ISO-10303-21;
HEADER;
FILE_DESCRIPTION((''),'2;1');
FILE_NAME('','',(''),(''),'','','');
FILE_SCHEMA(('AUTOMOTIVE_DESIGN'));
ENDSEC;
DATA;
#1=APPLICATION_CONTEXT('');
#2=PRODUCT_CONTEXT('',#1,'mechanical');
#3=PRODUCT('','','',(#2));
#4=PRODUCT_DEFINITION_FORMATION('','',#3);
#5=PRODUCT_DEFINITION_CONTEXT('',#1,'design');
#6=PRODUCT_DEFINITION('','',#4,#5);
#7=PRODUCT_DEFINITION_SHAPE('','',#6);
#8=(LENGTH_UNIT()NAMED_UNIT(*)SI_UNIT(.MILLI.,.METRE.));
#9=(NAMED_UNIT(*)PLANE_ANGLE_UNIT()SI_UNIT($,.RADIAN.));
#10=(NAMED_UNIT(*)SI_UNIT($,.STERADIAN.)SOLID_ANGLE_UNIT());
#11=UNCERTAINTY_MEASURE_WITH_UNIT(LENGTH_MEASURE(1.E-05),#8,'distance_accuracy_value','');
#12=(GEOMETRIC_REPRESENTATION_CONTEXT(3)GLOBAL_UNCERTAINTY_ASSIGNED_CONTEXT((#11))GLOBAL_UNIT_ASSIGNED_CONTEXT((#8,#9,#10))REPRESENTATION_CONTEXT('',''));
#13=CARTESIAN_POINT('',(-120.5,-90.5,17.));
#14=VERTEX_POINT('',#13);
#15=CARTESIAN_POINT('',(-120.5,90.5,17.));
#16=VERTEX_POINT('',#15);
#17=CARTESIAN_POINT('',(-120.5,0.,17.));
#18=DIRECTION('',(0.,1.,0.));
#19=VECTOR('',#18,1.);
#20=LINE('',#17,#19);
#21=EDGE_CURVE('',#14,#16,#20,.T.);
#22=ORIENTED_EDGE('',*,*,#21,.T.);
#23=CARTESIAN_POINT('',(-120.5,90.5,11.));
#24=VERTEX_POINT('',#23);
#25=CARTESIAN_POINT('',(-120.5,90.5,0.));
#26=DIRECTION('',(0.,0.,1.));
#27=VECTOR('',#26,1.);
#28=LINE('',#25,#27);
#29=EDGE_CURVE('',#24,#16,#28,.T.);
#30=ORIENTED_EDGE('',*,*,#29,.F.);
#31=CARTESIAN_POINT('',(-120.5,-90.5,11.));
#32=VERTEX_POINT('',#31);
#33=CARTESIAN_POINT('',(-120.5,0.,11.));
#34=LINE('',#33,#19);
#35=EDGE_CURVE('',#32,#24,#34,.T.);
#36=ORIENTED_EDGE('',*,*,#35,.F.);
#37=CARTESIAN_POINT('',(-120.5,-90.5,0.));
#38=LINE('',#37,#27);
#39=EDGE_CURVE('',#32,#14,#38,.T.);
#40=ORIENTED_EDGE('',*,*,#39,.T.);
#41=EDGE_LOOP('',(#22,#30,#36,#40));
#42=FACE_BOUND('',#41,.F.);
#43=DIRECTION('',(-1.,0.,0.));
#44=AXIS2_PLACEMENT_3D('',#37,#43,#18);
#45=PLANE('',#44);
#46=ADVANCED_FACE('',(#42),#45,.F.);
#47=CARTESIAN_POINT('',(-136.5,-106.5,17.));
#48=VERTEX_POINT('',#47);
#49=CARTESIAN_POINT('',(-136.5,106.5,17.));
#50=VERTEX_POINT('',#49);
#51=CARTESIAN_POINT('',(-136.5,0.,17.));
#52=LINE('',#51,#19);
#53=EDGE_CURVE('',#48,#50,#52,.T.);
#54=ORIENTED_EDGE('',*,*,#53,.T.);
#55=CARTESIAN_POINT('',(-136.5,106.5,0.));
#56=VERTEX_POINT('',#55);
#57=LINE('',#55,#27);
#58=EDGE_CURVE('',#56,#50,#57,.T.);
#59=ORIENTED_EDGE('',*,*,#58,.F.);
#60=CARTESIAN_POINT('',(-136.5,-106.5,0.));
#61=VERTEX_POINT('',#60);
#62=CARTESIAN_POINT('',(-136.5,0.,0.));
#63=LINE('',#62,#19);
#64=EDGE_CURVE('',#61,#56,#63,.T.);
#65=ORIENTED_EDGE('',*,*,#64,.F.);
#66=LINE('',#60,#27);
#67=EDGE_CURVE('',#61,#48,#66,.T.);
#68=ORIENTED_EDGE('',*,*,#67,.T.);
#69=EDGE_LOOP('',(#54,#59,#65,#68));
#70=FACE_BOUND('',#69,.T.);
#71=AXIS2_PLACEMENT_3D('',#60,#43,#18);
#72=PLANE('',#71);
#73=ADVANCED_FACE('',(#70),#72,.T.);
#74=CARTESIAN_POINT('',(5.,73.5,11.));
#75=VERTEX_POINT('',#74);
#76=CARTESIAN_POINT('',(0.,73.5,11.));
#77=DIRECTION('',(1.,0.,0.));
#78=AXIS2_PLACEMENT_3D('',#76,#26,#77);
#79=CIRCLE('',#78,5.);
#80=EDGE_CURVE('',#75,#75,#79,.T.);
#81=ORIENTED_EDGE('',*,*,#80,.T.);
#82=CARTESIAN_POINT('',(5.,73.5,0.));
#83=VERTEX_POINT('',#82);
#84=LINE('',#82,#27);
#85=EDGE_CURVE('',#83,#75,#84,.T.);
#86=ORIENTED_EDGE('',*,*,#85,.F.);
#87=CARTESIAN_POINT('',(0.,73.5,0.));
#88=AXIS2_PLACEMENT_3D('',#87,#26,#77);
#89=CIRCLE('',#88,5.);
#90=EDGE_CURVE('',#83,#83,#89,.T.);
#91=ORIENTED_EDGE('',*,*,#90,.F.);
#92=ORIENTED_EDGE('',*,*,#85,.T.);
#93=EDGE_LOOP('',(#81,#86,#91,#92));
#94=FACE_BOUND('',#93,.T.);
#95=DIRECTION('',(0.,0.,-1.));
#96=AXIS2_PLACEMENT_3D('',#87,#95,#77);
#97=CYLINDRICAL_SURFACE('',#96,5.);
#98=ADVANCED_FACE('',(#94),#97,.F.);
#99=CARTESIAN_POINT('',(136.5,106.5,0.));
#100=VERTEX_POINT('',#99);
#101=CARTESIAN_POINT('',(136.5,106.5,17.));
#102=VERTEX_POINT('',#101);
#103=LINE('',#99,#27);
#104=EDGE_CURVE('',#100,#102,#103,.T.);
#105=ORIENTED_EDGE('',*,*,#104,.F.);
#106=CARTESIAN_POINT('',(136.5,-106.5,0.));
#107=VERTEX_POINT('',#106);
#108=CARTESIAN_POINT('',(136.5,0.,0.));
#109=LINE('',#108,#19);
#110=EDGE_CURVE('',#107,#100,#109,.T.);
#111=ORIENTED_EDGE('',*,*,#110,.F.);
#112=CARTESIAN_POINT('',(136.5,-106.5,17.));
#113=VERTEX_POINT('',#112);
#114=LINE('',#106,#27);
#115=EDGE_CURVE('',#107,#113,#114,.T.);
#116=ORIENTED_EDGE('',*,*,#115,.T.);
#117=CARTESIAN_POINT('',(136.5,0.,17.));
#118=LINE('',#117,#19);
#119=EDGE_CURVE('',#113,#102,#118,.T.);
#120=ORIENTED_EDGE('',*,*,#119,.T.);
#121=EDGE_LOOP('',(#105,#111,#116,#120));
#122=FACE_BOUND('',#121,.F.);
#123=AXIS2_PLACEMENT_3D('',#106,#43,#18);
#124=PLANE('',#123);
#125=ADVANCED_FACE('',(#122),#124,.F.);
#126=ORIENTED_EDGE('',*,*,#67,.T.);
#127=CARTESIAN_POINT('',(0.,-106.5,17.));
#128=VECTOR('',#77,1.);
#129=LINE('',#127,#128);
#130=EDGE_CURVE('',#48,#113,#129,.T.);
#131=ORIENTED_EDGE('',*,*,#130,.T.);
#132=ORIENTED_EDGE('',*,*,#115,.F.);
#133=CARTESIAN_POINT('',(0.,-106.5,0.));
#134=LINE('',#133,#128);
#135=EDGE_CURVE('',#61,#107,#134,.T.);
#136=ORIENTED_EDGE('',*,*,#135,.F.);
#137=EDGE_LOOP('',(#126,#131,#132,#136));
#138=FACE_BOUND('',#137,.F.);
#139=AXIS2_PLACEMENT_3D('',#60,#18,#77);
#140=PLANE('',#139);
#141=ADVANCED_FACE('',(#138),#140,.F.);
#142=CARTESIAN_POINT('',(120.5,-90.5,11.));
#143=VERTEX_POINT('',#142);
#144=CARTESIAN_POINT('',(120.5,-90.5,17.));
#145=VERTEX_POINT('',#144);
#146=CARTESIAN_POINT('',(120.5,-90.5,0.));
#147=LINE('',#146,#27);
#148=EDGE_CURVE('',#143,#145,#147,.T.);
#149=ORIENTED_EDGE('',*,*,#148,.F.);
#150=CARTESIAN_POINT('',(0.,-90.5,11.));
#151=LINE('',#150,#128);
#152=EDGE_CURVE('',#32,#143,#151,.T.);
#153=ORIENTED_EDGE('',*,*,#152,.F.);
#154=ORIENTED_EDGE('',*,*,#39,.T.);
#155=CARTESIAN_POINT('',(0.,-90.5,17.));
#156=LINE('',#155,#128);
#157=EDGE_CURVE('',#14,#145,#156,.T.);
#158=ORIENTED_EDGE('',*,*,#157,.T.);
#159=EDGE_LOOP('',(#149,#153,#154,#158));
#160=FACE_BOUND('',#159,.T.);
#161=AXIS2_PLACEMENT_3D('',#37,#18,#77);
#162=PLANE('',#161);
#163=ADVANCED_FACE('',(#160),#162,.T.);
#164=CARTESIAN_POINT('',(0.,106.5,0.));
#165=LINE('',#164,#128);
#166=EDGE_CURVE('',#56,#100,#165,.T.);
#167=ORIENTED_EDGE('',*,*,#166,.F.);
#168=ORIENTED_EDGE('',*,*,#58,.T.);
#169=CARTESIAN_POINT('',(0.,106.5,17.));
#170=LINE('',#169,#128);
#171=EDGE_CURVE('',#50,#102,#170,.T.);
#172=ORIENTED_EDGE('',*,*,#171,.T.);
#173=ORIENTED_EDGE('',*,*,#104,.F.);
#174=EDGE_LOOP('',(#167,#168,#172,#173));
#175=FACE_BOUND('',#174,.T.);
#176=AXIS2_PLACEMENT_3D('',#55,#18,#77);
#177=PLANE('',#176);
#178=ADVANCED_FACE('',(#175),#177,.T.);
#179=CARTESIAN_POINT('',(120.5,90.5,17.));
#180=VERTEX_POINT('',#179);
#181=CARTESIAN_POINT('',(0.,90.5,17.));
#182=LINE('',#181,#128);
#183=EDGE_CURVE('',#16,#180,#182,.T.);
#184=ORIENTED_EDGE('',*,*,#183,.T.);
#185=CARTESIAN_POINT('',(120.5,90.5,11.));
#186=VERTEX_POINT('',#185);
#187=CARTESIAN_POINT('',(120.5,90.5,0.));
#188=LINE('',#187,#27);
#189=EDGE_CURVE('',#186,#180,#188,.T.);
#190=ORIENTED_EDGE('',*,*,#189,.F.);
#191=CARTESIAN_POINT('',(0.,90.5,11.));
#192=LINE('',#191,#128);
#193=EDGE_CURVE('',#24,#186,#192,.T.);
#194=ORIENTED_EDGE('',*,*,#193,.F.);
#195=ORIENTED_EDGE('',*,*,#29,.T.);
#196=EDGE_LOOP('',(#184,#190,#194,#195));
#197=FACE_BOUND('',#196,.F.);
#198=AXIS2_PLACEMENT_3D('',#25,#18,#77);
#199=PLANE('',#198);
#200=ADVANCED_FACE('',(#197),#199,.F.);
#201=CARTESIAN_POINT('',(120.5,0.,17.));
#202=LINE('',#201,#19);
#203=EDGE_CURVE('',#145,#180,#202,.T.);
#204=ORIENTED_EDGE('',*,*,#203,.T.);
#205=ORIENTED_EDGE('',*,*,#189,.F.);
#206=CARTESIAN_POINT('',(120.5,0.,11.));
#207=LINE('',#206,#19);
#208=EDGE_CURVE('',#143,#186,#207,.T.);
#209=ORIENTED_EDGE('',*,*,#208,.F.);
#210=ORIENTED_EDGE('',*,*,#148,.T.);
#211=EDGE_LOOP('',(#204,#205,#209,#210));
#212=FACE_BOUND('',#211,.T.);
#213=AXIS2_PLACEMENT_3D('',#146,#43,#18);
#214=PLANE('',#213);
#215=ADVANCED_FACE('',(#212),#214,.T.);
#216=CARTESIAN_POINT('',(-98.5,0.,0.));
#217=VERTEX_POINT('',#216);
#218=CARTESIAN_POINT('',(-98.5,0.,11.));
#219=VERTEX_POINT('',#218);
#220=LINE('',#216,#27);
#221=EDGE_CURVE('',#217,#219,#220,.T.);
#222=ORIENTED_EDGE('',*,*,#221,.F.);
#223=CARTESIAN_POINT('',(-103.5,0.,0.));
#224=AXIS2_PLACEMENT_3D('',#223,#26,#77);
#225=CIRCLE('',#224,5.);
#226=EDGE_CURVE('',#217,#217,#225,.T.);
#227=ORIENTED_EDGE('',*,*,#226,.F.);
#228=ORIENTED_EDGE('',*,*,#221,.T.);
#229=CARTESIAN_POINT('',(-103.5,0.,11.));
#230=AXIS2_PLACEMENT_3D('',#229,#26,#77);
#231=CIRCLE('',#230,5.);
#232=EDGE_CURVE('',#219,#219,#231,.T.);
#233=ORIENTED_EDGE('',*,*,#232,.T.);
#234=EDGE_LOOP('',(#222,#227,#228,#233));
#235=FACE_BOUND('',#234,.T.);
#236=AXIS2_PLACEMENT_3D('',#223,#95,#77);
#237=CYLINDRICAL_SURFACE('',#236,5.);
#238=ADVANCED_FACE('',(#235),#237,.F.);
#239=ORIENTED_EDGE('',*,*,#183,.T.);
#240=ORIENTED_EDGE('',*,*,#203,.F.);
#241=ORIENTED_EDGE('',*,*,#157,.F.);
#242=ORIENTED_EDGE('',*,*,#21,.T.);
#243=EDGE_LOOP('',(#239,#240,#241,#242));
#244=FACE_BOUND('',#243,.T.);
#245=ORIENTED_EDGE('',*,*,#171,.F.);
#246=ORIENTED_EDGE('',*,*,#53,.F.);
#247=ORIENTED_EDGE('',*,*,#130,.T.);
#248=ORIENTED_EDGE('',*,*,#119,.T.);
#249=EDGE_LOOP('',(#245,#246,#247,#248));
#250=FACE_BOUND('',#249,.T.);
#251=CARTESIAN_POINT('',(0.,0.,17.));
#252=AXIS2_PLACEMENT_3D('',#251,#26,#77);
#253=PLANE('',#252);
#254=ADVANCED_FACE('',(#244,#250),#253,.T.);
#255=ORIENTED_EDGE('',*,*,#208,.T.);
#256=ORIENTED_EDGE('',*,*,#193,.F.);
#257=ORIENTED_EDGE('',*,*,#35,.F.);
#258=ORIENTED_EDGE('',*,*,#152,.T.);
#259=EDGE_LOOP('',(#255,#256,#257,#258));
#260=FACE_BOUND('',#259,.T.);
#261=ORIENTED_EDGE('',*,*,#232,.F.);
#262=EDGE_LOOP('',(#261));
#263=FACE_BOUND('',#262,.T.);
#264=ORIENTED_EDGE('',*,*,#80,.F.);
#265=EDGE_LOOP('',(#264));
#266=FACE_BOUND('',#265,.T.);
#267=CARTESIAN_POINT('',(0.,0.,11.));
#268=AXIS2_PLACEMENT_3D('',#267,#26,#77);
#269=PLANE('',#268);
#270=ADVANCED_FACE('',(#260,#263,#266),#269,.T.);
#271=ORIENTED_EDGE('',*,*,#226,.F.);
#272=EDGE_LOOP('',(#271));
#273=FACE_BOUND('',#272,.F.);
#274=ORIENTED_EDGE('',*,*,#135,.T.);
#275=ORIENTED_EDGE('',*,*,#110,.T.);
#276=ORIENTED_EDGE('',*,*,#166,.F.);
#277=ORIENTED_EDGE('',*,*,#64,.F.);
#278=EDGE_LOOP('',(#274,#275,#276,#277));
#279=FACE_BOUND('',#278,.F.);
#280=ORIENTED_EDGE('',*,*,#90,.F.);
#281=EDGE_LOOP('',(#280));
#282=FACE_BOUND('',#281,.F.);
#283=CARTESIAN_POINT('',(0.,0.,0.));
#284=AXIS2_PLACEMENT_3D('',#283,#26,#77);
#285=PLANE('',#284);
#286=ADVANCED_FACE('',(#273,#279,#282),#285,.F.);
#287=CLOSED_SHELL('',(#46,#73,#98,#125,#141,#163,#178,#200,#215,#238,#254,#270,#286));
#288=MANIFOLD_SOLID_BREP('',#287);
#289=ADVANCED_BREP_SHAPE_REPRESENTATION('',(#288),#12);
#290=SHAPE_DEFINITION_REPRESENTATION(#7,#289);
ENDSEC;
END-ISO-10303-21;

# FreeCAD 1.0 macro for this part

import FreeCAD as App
import Part
import Sketcher
from FreeCAD import Vector
Q = App.Units.Quantity

doc = App.newDocument("Part")
body = doc.addObject("PartDesign::Body", "Body")

sketch1 = body.newObject("Sketcher::SketchObject", "Sketch")
sketch1.AttachmentSupport = (doc.getObject("XY_Plane"), [""])
sketch1.MapMode = "FlatFace"
sketch1.addGeometry([
    Part.LineSegment(Vector(-136.5, 106.5, 0), Vector(-136.5, -106.5, 0)),
    Part.LineSegment(Vector(-136.5, -106.5, 0), Vector(136.5, -106.5, 0)),
    Part.LineSegment(Vector(136.5, -106.5, 0), Vector(136.5, 106.5, 0)),
    Part.LineSegment(Vector(136.5, 106.5, 0), Vector(-136.5, 106.5, 0)),
    Part.LineSegment(Vector(120.5, -90.5, 0), Vector(-120.5, -90.5, 0)),
    Part.LineSegment(Vector(-120.5, -90.5, 0), Vector(-120.5, 90.5, 0)),
    Part.LineSegment(Vector(-120.5, 90.5, 0), Vector(120.5, 90.5, 0)),
    Part.LineSegment(Vector(120.5, 90.5, 0), Vector(120.5, -90.5, 0)),
], False)
sketch1.addConstraint([
    Sketcher.Constraint("Coincident", 0, 2, 1, 1),
    Sketcher.Constraint("Coincident", 1, 2, 2, 1),
    Sketcher.Constraint("Coincident", 2, 2, 3, 1),
    Sketcher.Constraint("Coincident", 3, 2, 0, 1),
    Sketcher.Constraint("Coincident", 4, 2, 5, 1),
    Sketcher.Constraint("Coincident", 5, 2, 6, 1),
    Sketcher.Constraint("Coincident", 6, 2, 7, 1),
    Sketcher.Constraint("Coincident", 7, 2, 4, 1),
    Sketcher.Constraint("Vertical", 0),
    Sketcher.Constraint("Horizontal", 1),
    Sketcher.Constraint("Vertical", 2),
    Sketcher.Constraint("Horizontal", 3),
    Sketcher.Constraint("Horizontal", 4),
    Sketcher.Constraint("Vertical", 5),
    Sketcher.Constraint("Horizontal", 6),
    Sketcher.Constraint("Vertical", 7),
    Sketcher.Constraint("Symmetric", 0, 2, 2, 2, -1, 1),
    Sketcher.Constraint("Symmetric", 4, 2, 6, 2, -1, 1),
    Sketcher.Constraint("DistanceX", 1, 1, 1, 2, Q("273 mm")),
    Sketcher.Constraint("DistanceX", 4, 2, 4, 1, Q("241 mm")),
    Sketcher.Constraint("DistanceY", 0, 2, 0, 1, Q("213 mm")),
    Sketcher.Constraint("DistanceY", 5, 1, 5, 2, Q("181 mm")),
])
pad1 = body.newObject("PartDesign::Pad", "Pad")
pad1.Profile = sketch1
pad1.Length = 17

sketch2 = body.newObject("Sketcher::SketchObject", "Sketch001")
sketch2.AttachmentSupport = (doc.getObject("XY_Plane"), [""])
sketch2.MapMode = "FlatFace"
sketch2.addGeometry([
    Part.LineSegment(Vector(-120.5, 90.5, 0), Vector(-120.5, -90.5, 0)),
    Part.LineSegment(Vector(-120.5, -90.5, 0), Vector(120.5, -90.5, 0)),
    Part.LineSegment(Vector(120.5, -90.5, 0), Vector(120.5, 90.5, 0)),
    Part.LineSegment(Vector(120.5, 90.5, 0), Vector(-120.5, 90.5, 0)),
    Part.Circle(Vector(-103.5, 0, 0), Vector(0, 0, 1), 5),
    Part.Circle(Vector(0, 73.5, 0), Vector(0, 0, 1), 5),
], False)
sketch2.addConstraint([
    Sketcher.Constraint("Coincident", 0, 2, 1, 1),
    Sketcher.Constraint("Coincident", 1, 2, 2, 1),
    Sketcher.Constraint("Coincident", 2, 2, 3, 1),
    Sketcher.Constraint("Coincident", 3, 2, 0, 1),
    Sketcher.Constraint("Vertical", 0),
    Sketcher.Constraint("Horizontal", 1),
    Sketcher.Constraint("Vertical", 2),
    Sketcher.Constraint("Horizontal", 3),
    Sketcher.Constraint("Equal", 4, 5),
    Sketcher.Constraint("Symmetric", 0, 2, 2, 2, -1, 1),
    Sketcher.Constraint("PointOnObject", 4, 3, -1),
    Sketcher.Constraint("PointOnObject", 5, 3, -2),
    Sketcher.Constraint("Diameter", 4, Q("10 mm")),
    Sketcher.Constraint("DistanceX", 1, 1, 1, 2, Q("241 mm")),
    Sketcher.Constraint("DistanceY", 0, 2, 0, 1, Q("181 mm")),
    Sketcher.Constraint("DistanceX", 0, 2, 4, 3, Q("17 mm")),
    Sketcher.Constraint("DistanceY", 0, 2, 5, 3, Q("164 mm")),
])
pad2 = body.newObject("PartDesign::Pad", "Pad001")
pad2.Profile = sketch2
pad2.Length = 11

doc.recompute()
